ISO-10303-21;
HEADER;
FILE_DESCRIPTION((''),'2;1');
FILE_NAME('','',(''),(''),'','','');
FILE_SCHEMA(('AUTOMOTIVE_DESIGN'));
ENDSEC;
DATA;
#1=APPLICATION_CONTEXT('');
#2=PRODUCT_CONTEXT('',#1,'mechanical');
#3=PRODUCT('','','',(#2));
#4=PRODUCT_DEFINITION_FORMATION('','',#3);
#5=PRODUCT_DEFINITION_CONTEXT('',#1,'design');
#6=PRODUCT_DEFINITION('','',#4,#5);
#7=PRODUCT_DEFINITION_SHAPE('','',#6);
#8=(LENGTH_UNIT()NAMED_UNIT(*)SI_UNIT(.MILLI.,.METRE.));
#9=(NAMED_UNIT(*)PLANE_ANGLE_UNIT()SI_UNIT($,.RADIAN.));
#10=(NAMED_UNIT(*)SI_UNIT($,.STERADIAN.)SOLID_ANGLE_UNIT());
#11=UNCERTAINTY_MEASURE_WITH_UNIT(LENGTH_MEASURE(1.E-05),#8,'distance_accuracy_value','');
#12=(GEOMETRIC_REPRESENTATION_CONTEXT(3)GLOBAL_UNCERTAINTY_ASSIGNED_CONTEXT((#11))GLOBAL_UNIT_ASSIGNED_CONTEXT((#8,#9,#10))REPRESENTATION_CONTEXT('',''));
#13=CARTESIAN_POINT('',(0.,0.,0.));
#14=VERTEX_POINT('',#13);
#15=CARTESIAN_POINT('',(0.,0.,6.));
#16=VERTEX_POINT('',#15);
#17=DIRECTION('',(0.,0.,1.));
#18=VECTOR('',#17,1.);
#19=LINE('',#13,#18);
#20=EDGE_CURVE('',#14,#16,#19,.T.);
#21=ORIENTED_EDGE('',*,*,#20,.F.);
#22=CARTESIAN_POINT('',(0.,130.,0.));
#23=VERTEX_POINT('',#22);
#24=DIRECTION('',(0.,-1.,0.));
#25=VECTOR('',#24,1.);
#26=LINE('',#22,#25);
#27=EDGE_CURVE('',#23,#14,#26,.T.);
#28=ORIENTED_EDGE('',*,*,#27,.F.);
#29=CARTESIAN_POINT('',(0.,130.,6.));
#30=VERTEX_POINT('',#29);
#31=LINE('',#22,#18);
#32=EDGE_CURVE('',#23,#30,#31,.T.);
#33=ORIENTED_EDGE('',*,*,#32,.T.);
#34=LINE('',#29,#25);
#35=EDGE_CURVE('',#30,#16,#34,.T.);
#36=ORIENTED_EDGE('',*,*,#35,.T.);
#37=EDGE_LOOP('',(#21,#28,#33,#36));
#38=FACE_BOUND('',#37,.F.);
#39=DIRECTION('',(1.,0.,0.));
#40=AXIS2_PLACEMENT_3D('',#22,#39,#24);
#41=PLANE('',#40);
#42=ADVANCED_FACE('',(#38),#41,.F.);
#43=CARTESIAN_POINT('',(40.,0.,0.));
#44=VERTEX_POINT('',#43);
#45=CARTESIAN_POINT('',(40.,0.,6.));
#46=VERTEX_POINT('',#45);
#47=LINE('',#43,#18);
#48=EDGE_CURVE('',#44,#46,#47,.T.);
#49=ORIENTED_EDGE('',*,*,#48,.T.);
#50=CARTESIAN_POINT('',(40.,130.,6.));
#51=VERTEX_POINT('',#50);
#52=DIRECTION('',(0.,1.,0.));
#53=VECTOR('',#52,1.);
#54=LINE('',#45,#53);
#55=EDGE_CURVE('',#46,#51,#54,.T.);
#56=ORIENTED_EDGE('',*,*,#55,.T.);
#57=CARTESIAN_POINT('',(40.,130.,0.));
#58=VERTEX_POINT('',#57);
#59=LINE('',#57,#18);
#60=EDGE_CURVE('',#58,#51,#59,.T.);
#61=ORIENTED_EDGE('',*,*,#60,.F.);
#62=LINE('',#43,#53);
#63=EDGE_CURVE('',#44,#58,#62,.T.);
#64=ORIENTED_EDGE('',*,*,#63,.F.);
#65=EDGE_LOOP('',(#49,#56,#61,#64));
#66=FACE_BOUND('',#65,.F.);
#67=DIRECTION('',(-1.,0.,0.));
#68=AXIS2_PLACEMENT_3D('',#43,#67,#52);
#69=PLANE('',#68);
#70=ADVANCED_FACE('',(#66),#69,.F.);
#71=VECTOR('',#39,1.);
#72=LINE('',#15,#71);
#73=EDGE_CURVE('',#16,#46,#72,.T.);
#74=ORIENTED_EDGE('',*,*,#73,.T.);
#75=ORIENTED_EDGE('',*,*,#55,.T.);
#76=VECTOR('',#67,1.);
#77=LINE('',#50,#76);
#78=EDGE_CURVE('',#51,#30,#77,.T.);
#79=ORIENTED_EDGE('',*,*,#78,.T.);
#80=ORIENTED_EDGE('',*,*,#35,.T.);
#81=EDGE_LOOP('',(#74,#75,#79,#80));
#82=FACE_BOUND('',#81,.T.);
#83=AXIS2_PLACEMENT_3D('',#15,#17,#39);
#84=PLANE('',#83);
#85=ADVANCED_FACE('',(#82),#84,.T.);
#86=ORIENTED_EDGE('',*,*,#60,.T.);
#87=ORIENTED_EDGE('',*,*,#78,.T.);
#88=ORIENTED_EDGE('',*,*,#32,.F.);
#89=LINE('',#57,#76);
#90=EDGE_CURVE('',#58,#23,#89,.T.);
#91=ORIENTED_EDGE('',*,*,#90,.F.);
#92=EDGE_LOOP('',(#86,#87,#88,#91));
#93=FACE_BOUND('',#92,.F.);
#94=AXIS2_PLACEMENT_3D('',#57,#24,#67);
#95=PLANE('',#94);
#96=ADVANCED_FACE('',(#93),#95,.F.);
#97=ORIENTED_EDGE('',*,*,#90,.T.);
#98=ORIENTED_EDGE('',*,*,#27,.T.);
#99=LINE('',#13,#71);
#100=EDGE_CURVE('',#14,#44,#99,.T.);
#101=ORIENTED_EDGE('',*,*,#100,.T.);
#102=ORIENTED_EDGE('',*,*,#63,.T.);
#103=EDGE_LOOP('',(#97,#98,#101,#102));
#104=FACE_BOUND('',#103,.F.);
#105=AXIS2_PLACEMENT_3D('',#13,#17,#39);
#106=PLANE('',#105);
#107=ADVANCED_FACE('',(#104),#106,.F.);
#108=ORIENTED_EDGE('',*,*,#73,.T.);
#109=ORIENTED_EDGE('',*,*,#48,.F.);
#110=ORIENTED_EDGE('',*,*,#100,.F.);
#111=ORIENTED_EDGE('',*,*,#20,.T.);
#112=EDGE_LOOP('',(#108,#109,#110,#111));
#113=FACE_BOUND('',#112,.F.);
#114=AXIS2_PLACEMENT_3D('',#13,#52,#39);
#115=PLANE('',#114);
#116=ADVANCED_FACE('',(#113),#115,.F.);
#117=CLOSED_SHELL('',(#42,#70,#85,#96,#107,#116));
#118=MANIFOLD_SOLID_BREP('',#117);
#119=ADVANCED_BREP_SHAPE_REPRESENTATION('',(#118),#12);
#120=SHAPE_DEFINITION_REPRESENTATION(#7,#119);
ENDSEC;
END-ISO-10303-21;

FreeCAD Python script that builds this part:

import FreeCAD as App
import Part
import Sketcher

V = App.Vector

doc = App.newDocument("Part")
body = doc.addObject("PartDesign::Body", "Body")

sketch1 = body.newObject("Sketcher::SketchObject", "Sketch")
sketch1.AttachmentSupport = (doc.getObject("XY_Plane"), [""])
sketch1.MapMode = "FlatFace"
sketch1.addGeometry(Part.LineSegment(V(0, 130, 0), V(0, 0, 0)), False)
sketch1.addGeometry(Part.LineSegment(V(0, 0, 0), V(40, 0, 0)), False)
sketch1.addGeometry(Part.LineSegment(V(40, 0, 0), V(40, 130, 0)), False)
sketch1.addGeometry(Part.LineSegment(V(40, 130, 0), V(0, 130, 0)), False)
sketch1.addConstraint(Sketcher.Constraint("Coincident", 0, 2, 1, 1))
sketch1.addConstraint(Sketcher.Constraint("Coincident", 1, 2, 2, 1))
sketch1.addConstraint(Sketcher.Constraint("Coincident", 2, 2, 3, 1))
sketch1.addConstraint(Sketcher.Constraint("Coincident", 3, 2, 0, 1))
sketch1.addConstraint(Sketcher.Constraint("Vertical", 0))
sketch1.addConstraint(Sketcher.Constraint("Horizontal", 1))
sketch1.addConstraint(Sketcher.Constraint("Vertical", 2))
sketch1.addConstraint(Sketcher.Constraint("Horizontal", 3))
sketch1.addConstraint(Sketcher.Constraint("Coincident", 0, 2, -1, 1))
sketch1.addConstraint(Sketcher.Constraint("DistanceX", 1, 1, 1, 2, 40.0))
sketch1.addConstraint(Sketcher.Constraint("DistanceY", 0, 2, 0, 1, 130.0))
pad1 = body.newObject("PartDesign::Pad", "Pad")
pad1.Profile = sketch1
pad1.Length = 6

doc.recompute()
